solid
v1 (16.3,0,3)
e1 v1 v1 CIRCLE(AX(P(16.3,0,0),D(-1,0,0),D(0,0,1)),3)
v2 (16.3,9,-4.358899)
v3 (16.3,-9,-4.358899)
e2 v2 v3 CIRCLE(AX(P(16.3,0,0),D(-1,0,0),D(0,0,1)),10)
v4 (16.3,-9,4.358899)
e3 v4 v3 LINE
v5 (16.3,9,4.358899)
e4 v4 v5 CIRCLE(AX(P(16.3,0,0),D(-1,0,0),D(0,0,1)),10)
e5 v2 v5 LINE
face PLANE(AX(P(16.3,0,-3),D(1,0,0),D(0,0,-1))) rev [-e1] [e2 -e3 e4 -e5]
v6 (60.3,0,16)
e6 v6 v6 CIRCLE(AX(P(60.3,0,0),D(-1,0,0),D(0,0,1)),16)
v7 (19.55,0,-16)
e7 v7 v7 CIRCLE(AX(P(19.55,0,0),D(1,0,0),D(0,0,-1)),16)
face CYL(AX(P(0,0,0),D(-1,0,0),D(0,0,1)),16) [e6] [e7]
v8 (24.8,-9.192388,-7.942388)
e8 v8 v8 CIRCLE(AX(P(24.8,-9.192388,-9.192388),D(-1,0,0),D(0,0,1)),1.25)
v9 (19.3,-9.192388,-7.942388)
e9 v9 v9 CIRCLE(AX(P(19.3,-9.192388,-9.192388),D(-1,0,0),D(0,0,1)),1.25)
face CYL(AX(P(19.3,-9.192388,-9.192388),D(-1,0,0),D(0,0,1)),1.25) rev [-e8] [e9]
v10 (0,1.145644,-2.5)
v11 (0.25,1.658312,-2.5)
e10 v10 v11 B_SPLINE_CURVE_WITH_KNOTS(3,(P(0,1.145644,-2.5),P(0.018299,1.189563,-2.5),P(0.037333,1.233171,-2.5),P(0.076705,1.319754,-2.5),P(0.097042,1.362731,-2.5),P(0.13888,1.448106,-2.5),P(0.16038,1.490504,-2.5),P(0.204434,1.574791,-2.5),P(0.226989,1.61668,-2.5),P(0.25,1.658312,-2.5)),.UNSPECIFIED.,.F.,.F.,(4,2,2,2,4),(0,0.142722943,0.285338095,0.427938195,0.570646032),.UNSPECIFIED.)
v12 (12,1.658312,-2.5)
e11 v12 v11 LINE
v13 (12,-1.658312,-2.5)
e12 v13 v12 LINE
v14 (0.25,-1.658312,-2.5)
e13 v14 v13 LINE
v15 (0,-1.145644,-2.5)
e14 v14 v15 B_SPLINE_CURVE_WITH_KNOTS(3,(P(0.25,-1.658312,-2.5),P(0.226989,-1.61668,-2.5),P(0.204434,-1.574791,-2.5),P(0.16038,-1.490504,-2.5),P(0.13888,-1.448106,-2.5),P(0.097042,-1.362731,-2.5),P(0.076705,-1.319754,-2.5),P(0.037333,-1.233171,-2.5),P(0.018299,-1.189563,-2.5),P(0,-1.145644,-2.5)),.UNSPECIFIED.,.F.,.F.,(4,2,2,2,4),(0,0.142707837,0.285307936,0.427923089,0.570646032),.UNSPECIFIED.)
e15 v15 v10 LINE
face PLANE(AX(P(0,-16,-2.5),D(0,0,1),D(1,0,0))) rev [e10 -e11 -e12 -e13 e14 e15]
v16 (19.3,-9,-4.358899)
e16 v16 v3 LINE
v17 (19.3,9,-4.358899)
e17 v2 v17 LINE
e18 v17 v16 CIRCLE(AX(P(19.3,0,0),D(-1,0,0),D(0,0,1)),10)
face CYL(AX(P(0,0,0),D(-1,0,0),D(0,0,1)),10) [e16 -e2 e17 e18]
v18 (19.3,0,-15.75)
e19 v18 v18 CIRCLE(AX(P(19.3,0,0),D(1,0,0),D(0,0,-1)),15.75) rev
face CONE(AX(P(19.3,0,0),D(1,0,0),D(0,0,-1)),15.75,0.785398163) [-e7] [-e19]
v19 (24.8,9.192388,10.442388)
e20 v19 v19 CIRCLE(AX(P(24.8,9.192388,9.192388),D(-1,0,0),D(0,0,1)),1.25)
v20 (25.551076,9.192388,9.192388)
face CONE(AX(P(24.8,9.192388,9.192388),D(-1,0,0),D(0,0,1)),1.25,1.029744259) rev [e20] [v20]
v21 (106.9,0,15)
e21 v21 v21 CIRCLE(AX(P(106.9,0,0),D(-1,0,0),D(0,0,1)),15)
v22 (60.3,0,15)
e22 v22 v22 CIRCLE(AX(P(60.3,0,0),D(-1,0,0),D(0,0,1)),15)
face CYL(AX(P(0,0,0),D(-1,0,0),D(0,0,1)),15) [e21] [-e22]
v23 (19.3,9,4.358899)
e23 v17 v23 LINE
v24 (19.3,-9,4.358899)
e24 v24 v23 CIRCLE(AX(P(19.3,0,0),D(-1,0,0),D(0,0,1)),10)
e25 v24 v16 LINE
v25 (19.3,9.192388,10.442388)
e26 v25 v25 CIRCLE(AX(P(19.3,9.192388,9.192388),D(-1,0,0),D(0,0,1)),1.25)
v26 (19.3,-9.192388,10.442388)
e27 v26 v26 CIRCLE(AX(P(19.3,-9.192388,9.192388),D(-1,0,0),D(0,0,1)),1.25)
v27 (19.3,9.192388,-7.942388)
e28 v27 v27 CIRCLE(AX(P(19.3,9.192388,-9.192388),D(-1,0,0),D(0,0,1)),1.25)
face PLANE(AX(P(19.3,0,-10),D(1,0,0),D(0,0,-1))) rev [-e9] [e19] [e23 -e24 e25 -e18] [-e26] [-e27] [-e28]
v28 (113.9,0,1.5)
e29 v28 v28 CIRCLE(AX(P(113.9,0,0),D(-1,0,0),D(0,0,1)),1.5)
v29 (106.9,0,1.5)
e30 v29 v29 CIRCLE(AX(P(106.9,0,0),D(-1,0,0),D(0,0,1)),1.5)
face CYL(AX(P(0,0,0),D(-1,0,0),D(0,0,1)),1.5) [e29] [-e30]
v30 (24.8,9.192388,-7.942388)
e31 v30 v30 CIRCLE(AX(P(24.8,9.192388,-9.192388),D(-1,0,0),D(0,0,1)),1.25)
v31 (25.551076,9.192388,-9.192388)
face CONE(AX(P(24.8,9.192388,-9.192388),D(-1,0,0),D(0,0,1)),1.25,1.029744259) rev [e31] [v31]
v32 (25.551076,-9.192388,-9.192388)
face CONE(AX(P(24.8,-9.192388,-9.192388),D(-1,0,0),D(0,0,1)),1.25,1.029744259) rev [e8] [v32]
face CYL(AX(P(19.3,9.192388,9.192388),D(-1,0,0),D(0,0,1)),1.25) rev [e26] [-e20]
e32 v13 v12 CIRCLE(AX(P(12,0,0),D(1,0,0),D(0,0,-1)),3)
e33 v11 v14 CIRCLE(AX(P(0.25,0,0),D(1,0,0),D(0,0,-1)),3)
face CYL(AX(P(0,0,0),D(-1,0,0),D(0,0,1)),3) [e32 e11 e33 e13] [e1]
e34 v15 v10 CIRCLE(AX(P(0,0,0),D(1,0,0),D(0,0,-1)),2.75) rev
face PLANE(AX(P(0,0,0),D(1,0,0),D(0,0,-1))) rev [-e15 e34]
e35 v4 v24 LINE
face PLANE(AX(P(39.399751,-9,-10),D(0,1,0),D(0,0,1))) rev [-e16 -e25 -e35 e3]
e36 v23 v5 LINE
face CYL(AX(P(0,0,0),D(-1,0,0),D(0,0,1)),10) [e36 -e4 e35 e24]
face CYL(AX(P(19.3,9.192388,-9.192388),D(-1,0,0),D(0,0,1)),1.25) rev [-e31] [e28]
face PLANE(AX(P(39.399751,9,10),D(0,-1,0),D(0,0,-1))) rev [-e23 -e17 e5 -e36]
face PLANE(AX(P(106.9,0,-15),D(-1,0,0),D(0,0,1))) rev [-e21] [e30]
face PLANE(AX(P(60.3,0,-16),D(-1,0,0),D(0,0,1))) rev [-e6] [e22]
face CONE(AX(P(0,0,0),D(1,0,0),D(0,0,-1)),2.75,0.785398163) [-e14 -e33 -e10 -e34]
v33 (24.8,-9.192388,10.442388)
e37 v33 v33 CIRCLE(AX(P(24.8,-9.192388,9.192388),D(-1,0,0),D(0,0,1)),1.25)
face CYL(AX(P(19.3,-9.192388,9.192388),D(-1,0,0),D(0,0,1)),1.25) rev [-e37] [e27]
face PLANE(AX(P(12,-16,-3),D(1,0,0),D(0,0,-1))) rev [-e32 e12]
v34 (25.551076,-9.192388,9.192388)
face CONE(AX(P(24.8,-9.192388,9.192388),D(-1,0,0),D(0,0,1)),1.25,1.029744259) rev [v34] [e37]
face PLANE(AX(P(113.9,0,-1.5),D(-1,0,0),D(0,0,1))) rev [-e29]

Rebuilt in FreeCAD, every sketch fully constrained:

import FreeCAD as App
import Part
import Sketcher
Q = App.Units.Quantity


def edges_at(feature, points):
    """Names of the edges that pass closest to the given points."""
    edges = feature.Shape.Edges
    near = lambda p: min(range(len(edges)), key=lambda i: edges[i].distToShape(Part.Vertex(*p))[0])
    return sorted({f"Edge{near(p) + 1}" for p in points})

doc = App.newDocument("Part")
params = doc.addObject("Spreadsheet::Sheet", "Params")
for row, (alias, value) in enumerate([
    ("sketch1_width", "7 mm"),
    ("sketch1_width2", "41 mm"),
    ("sketch1_width3", "3 mm"),
    ("sketch1_height", "1 mm"),
    ("sketch1_height2", "6 mm"),
    ("revolution_angle", "360 deg"),
    ("sketch2_width", "12 mm"),
    ("sketch2_height", "0.5 mm"),
    ("chamfer_size", "0.25 mm"),
    ("sketch3_width", "2 mm"),
    ("sketch3_height", "20 mm"),
    ("pocket2_length", "3 mm"),
    ("sketch4_diameter", "2.5 mm"),
    ("hole_diameter", "2.5 mm"),
    ("hole_depth", "5.5 mm"),
], start=1):
    params.set(f"A{row}", alias)
    params.set(f"B{row}", "=" + value)
    params.setAlias(f"B{row}", alias)

body = doc.addObject("PartDesign::Body", "Body")

# Sketch on XZ plane
sketch1 = body.newObject("Sketcher::SketchObject", "Sketch")
sketch1.AttachmentSupport = (doc.getObject("XZ_Plane"), [""])
sketch1.MapMode = "FlatFace"
sketch1.addGeometry([
    Part.LineSegment(App.Vector(0, 0, 0), App.Vector(113.9, 0, 0)),  # 0
    Part.LineSegment(App.Vector(113.9, 0, 0), App.Vector(113.9, -1.5, 0)),  # 1
    Part.LineSegment(App.Vector(113.9, -1.5, 0), App.Vector(106.9, -1.5, 0)),  # 2
    Part.LineSegment(App.Vector(106.9, -1.5, 0), App.Vector(106.9, -15, 0)),  # 3
    Part.LineSegment(App.Vector(106.9, -15, 0), App.Vector(60.3, -15, 0)),  # 4
    Part.LineSegment(App.Vector(60.3, -15, 0), App.Vector(60.3, -16, 0)),  # 5
    Part.LineSegment(App.Vector(60.3, -16, 0), App.Vector(19.3, -16, 0)),  # 6
    Part.LineSegment(App.Vector(19.3, -16, 0), App.Vector(19.3, -10, 0)),  # 7
    Part.LineSegment(App.Vector(19.3, -10, 0), App.Vector(16.3, -10, 0)),  # 8
    Part.LineSegment(App.Vector(16.3, -10, 0), App.Vector(16.3, -3, 0)),  # 9
    Part.LineSegment(App.Vector(16.3, -3, 0), App.Vector(0, -3, 0)),  # 10
    Part.LineSegment(App.Vector(0, -3, 0), App.Vector(0, 0, 0)),  # 11
], False)
sketch1.addConstraint([
    Sketcher.Constraint("Coincident", 0, 2, 1, 1),
    Sketcher.Constraint("Coincident", 1, 2, 2, 1),
    Sketcher.Constraint("Coincident", 2, 2, 3, 1),
    Sketcher.Constraint("Coincident", 3, 2, 4, 1),
    Sketcher.Constraint("Coincident", 4, 2, 5, 1),
    Sketcher.Constraint("Coincident", 5, 2, 6, 1),
    Sketcher.Constraint("Coincident", 6, 2, 7, 1),
    Sketcher.Constraint("Coincident", 7, 2, 8, 1),
    Sketcher.Constraint("Coincident", 8, 2, 9, 1),
    Sketcher.Constraint("Coincident", 9, 2, 10, 1),
    Sketcher.Constraint("Coincident", 10, 2, 11, 1),
    Sketcher.Constraint("Coincident", 11, 2, 0, 1),
    Sketcher.Constraint("Horizontal", 0),
    Sketcher.Constraint("Vertical", 1),
    Sketcher.Constraint("Horizontal", 2),
    Sketcher.Constraint("Vertical", 3),
    Sketcher.Constraint("Horizontal", 4),
    Sketcher.Constraint("Vertical", 5),
    Sketcher.Constraint("Horizontal", 6),
    Sketcher.Constraint("Vertical", 7),
    Sketcher.Constraint("Horizontal", 8),
    Sketcher.Constraint("Vertical", 9),
    Sketcher.Constraint("Horizontal", 10),
    Sketcher.Constraint("Vertical", 11),
    Sketcher.Constraint("Coincident", 11, 2, -1, 1),
    Sketcher.Constraint("Equal", 2, 9),
    Sketcher.Constraint("Equal", 8, 11),
    Sketcher.Constraint("DistanceX", 2, 2, 2, 1, Q("7 mm")),
    Sketcher.Constraint("DistanceX", 6, 2, 6, 1, Q("41 mm")),
    Sketcher.Constraint("DistanceX", 8, 2, 8, 1, Q("3 mm")),
    Sketcher.Constraint("DistanceY", 5, 2, 5, 1, Q("1 mm")),
    Sketcher.Constraint("DistanceY", 7, 1, 7, 2, Q("6 mm")),
    Sketcher.Constraint("DistanceX", 0, 1, 0, 2, Q("113.9 mm")),
    Sketcher.Constraint("DistanceX", 4, 2, 4, 1, Q("46.6 mm")),
    Sketcher.Constraint("DistanceY", 1, 2, 1, 1, Q("1.5 mm")),
])
sketch1.setExpression("Constraints[27]", "Params.sketch1_width")
sketch1.setExpression("Constraints[28]", "Params.sketch1_width2")
sketch1.setExpression("Constraints[29]", "Params.sketch1_width3")
sketch1.setExpression("Constraints[30]", "Params.sketch1_height")
sketch1.setExpression("Constraints[31]", "Params.sketch1_height2")
revolution = body.newObject("PartDesign::Revolution", "Revolution")
revolution.Profile = sketch1
revolution.ReferenceAxis = (sketch1, ["H_Axis"])
revolution.setExpression("Angle", "Params.revolution_angle")

# Sketch on XZ plane
sketch2 = body.newObject("Sketcher::SketchObject", "Sketch001")
sketch2.AttachmentSupport = (doc.getObject("XZ_Plane"), [""])
sketch2.MapMode = "FlatFace"
sketch2.addGeometry([
    Part.LineSegment(App.Vector(0, -3, 0), App.Vector(0, -2.5, 0)),
    Part.LineSegment(App.Vector(0, -2.5, 0), App.Vector(12, -2.5, 0)),
    Part.LineSegment(App.Vector(12, -2.5, 0), App.Vector(12, -3, 0)),
    Part.LineSegment(App.Vector(12, -3, 0), App.Vector(0, -3, 0)),
], False)
sketch2.addConstraint([
    Sketcher.Constraint("Coincident", 0, 2, 1, 1),
    Sketcher.Constraint("Coincident", 1, 2, 2, 1),
    Sketcher.Constraint("Coincident", 2, 2, 3, 1),
    Sketcher.Constraint("Coincident", 3, 2, 0, 1),
    Sketcher.Constraint("Vertical", 0),
    Sketcher.Constraint("Horizontal", 1),
    Sketcher.Constraint("Vertical", 2),
    Sketcher.Constraint("Horizontal", 3),
    Sketcher.Constraint("PointOnObject", 0, 2, -2),
    Sketcher.Constraint("DistanceX", 1, 1, 1, 2, Q("12 mm")),
    Sketcher.Constraint("DistanceY", 0, 1, 0, 2, Q("0.5 mm")),
    Sketcher.Constraint("DistanceY", 2, 2, -1, 1, Q("3 mm")),
])
sketch2.setExpression("Constraints[9]", "Params.sketch2_width")
sketch2.setExpression("Constraints[10]", "Params.sketch2_height")
pocket1 = body.newObject("PartDesign::Pocket", "Pocket")
pocket1.Profile = sketch2
pocket1.Type = "ThroughAll"
pocket1.Midplane = True
doc.recompute()

chamfer = body.newObject("PartDesign::Chamfer", "Chamfer")
chamfer.Base = (pocket1, edges_at(pocket1, [(19.3, 0, -16), (0, 2.872, 0.866)]))
chamfer.setExpression("Size", "Params.chamfer_size")

# Sketch on YZ plane
sketch3 = body.newObject("Sketcher::SketchObject", "Sketch002")
sketch3.AttachmentSupport = (doc.getObject("YZ_Plane"), [""])
sketch3.MapMode = "FlatFace"
sketch3.AttachmentOffset = App.Placement(App.Vector(0, 0, 16.3), App.Rotation())
sketch3.addGeometry([
    Part.LineSegment(App.Vector(11, -10, 0), App.Vector(9, -10, 0)),  # 0
    Part.LineSegment(App.Vector(9, -10, 0), App.Vector(9, 10, 0)),  # 1
    Part.LineSegment(App.Vector(9, 10, 0), App.Vector(11, 10, 0)),  # 2
    Part.LineSegment(App.Vector(11, 10, 0), App.Vector(11, -10, 0)),  # 3
    Part.LineSegment(App.Vector(-9, -10, 0), App.Vector(-11, -10, 0)),  # 4
    Part.LineSegment(App.Vector(-11, -10, 0), App.Vector(-11, 10, 0)),  # 5
    Part.LineSegment(App.Vector(-11, 10, 0), App.Vector(-9, 10, 0)),  # 6
    Part.LineSegment(App.Vector(-9, 10, 0), App.Vector(-9, -10, 0)),  # 7
], False)
sketch3.addConstraint([
    Sketcher.Constraint("Coincident", 0, 2, 1, 1),
    Sketcher.Constraint("Coincident", 1, 2, 2, 1),
    Sketcher.Constraint("Coincident", 2, 2, 3, 1),
    Sketcher.Constraint("Coincident", 3, 2, 0, 1),
    Sketcher.Constraint("Coincident", 4, 2, 5, 1),
    Sketcher.Constraint("Coincident", 5, 2, 6, 1),
    Sketcher.Constraint("Coincident", 6, 2, 7, 1),
    Sketcher.Constraint("Coincident", 7, 2, 4, 1),
    Sketcher.Constraint("Horizontal", 0),
    Sketcher.Constraint("Vertical", 1),
    Sketcher.Constraint("Horizontal", 2),
    Sketcher.Constraint("Vertical", 3),
    Sketcher.Constraint("Horizontal", 4),
    Sketcher.Constraint("Vertical", 5),
    Sketcher.Constraint("Horizontal", 6),
    Sketcher.Constraint("Vertical", 7),
    Sketcher.Constraint("Symmetric", 2, 2, 4, 2, -1, 1),
    Sketcher.Constraint("Symmetric", 0, 2, 6, 2, -1, 1),
    Sketcher.Constraint("Horizontal", 3, 2, 4, 2),
    Sketcher.Constraint("DistanceX", 0, 2, 0, 1, Q("2 mm")),
    Sketcher.Constraint("DistanceY", 1, 1, 1, 2, Q("20 mm")),
    Sketcher.Constraint("DistanceX", -1, 1, 0, 2, Q("9 mm")),
])
sketch3.setExpression("Constraints[19]", "Params.sketch3_width")
sketch3.setExpression("Constraints[20]", "Params.sketch3_height")
pocket2 = body.newObject("PartDesign::Pocket", "Pocket001")
pocket2.Profile = sketch3
pocket2.setExpression("Length", "Params.pocket2_length")
pocket2.Reversed = True

# Sketch on YZ plane
sketch4 = body.newObject("Sketcher::SketchObject", "Sketch003")
sketch4.AttachmentSupport = (doc.getObject("YZ_Plane"), [""])
sketch4.MapMode = "FlatFace"
sketch4.AttachmentOffset = App.Placement(App.Vector(0, 0, 19.3), App.Rotation())
sketch4.addGeometry([
    Part.Circle(App.Vector(-9.2, -9.2, 0), App.Vector(0, 0, 1), 1.2),
    Part.Circle(App.Vector(9.2, -9.2, 0), App.Vector(0, 0, 1), 1.2),
    Part.Circle(App.Vector(9.2, 9.2, 0), App.Vector(0, 0, 1), 1.2),
    Part.Circle(App.Vector(-9.2, 9.2, 0), App.Vector(0, 0, 1), 1.2),
], False)
sketch4.addConstraint([
    Sketcher.Constraint("Equal", 0, 1),
    Sketcher.Constraint("Equal", 1, 2),
    Sketcher.Constraint("Equal", 2, 3),
    Sketcher.Constraint("Symmetric", 0, 3, 2, 3, -1, 1),
    Sketcher.Constraint("Symmetric", 1, 3, 3, 3, -1, 1),
    Sketcher.Constraint("Symmetric", 0, 3, 1, 3, -2),
    Sketcher.Constraint("Diameter", 0, Q("2.5 mm")),
    Sketcher.Constraint("DistanceX", 0, 3, -1, 1, Q("9.192388 mm")),
    Sketcher.Constraint("DistanceY", 0, 3, -1, 1, Q("9.192388 mm")),
])
sketch4.setExpression("Constraints[6]", "Params.sketch4_diameter")
doc.recompute()
hole = body.newObject("PartDesign::Hole", "Hole")
hole.Profile = sketch4
hole.ThreadType = "None"
hole.setExpression("Diameter", "Params.hole_diameter")
hole.DepthType = "Dimension"
hole.setExpression("Depth", "Params.hole_depth")
hole.DrillPoint = "Angled"
hole.DrillPointAngle = 118
hole.Reversed = True

doc.recompute()
